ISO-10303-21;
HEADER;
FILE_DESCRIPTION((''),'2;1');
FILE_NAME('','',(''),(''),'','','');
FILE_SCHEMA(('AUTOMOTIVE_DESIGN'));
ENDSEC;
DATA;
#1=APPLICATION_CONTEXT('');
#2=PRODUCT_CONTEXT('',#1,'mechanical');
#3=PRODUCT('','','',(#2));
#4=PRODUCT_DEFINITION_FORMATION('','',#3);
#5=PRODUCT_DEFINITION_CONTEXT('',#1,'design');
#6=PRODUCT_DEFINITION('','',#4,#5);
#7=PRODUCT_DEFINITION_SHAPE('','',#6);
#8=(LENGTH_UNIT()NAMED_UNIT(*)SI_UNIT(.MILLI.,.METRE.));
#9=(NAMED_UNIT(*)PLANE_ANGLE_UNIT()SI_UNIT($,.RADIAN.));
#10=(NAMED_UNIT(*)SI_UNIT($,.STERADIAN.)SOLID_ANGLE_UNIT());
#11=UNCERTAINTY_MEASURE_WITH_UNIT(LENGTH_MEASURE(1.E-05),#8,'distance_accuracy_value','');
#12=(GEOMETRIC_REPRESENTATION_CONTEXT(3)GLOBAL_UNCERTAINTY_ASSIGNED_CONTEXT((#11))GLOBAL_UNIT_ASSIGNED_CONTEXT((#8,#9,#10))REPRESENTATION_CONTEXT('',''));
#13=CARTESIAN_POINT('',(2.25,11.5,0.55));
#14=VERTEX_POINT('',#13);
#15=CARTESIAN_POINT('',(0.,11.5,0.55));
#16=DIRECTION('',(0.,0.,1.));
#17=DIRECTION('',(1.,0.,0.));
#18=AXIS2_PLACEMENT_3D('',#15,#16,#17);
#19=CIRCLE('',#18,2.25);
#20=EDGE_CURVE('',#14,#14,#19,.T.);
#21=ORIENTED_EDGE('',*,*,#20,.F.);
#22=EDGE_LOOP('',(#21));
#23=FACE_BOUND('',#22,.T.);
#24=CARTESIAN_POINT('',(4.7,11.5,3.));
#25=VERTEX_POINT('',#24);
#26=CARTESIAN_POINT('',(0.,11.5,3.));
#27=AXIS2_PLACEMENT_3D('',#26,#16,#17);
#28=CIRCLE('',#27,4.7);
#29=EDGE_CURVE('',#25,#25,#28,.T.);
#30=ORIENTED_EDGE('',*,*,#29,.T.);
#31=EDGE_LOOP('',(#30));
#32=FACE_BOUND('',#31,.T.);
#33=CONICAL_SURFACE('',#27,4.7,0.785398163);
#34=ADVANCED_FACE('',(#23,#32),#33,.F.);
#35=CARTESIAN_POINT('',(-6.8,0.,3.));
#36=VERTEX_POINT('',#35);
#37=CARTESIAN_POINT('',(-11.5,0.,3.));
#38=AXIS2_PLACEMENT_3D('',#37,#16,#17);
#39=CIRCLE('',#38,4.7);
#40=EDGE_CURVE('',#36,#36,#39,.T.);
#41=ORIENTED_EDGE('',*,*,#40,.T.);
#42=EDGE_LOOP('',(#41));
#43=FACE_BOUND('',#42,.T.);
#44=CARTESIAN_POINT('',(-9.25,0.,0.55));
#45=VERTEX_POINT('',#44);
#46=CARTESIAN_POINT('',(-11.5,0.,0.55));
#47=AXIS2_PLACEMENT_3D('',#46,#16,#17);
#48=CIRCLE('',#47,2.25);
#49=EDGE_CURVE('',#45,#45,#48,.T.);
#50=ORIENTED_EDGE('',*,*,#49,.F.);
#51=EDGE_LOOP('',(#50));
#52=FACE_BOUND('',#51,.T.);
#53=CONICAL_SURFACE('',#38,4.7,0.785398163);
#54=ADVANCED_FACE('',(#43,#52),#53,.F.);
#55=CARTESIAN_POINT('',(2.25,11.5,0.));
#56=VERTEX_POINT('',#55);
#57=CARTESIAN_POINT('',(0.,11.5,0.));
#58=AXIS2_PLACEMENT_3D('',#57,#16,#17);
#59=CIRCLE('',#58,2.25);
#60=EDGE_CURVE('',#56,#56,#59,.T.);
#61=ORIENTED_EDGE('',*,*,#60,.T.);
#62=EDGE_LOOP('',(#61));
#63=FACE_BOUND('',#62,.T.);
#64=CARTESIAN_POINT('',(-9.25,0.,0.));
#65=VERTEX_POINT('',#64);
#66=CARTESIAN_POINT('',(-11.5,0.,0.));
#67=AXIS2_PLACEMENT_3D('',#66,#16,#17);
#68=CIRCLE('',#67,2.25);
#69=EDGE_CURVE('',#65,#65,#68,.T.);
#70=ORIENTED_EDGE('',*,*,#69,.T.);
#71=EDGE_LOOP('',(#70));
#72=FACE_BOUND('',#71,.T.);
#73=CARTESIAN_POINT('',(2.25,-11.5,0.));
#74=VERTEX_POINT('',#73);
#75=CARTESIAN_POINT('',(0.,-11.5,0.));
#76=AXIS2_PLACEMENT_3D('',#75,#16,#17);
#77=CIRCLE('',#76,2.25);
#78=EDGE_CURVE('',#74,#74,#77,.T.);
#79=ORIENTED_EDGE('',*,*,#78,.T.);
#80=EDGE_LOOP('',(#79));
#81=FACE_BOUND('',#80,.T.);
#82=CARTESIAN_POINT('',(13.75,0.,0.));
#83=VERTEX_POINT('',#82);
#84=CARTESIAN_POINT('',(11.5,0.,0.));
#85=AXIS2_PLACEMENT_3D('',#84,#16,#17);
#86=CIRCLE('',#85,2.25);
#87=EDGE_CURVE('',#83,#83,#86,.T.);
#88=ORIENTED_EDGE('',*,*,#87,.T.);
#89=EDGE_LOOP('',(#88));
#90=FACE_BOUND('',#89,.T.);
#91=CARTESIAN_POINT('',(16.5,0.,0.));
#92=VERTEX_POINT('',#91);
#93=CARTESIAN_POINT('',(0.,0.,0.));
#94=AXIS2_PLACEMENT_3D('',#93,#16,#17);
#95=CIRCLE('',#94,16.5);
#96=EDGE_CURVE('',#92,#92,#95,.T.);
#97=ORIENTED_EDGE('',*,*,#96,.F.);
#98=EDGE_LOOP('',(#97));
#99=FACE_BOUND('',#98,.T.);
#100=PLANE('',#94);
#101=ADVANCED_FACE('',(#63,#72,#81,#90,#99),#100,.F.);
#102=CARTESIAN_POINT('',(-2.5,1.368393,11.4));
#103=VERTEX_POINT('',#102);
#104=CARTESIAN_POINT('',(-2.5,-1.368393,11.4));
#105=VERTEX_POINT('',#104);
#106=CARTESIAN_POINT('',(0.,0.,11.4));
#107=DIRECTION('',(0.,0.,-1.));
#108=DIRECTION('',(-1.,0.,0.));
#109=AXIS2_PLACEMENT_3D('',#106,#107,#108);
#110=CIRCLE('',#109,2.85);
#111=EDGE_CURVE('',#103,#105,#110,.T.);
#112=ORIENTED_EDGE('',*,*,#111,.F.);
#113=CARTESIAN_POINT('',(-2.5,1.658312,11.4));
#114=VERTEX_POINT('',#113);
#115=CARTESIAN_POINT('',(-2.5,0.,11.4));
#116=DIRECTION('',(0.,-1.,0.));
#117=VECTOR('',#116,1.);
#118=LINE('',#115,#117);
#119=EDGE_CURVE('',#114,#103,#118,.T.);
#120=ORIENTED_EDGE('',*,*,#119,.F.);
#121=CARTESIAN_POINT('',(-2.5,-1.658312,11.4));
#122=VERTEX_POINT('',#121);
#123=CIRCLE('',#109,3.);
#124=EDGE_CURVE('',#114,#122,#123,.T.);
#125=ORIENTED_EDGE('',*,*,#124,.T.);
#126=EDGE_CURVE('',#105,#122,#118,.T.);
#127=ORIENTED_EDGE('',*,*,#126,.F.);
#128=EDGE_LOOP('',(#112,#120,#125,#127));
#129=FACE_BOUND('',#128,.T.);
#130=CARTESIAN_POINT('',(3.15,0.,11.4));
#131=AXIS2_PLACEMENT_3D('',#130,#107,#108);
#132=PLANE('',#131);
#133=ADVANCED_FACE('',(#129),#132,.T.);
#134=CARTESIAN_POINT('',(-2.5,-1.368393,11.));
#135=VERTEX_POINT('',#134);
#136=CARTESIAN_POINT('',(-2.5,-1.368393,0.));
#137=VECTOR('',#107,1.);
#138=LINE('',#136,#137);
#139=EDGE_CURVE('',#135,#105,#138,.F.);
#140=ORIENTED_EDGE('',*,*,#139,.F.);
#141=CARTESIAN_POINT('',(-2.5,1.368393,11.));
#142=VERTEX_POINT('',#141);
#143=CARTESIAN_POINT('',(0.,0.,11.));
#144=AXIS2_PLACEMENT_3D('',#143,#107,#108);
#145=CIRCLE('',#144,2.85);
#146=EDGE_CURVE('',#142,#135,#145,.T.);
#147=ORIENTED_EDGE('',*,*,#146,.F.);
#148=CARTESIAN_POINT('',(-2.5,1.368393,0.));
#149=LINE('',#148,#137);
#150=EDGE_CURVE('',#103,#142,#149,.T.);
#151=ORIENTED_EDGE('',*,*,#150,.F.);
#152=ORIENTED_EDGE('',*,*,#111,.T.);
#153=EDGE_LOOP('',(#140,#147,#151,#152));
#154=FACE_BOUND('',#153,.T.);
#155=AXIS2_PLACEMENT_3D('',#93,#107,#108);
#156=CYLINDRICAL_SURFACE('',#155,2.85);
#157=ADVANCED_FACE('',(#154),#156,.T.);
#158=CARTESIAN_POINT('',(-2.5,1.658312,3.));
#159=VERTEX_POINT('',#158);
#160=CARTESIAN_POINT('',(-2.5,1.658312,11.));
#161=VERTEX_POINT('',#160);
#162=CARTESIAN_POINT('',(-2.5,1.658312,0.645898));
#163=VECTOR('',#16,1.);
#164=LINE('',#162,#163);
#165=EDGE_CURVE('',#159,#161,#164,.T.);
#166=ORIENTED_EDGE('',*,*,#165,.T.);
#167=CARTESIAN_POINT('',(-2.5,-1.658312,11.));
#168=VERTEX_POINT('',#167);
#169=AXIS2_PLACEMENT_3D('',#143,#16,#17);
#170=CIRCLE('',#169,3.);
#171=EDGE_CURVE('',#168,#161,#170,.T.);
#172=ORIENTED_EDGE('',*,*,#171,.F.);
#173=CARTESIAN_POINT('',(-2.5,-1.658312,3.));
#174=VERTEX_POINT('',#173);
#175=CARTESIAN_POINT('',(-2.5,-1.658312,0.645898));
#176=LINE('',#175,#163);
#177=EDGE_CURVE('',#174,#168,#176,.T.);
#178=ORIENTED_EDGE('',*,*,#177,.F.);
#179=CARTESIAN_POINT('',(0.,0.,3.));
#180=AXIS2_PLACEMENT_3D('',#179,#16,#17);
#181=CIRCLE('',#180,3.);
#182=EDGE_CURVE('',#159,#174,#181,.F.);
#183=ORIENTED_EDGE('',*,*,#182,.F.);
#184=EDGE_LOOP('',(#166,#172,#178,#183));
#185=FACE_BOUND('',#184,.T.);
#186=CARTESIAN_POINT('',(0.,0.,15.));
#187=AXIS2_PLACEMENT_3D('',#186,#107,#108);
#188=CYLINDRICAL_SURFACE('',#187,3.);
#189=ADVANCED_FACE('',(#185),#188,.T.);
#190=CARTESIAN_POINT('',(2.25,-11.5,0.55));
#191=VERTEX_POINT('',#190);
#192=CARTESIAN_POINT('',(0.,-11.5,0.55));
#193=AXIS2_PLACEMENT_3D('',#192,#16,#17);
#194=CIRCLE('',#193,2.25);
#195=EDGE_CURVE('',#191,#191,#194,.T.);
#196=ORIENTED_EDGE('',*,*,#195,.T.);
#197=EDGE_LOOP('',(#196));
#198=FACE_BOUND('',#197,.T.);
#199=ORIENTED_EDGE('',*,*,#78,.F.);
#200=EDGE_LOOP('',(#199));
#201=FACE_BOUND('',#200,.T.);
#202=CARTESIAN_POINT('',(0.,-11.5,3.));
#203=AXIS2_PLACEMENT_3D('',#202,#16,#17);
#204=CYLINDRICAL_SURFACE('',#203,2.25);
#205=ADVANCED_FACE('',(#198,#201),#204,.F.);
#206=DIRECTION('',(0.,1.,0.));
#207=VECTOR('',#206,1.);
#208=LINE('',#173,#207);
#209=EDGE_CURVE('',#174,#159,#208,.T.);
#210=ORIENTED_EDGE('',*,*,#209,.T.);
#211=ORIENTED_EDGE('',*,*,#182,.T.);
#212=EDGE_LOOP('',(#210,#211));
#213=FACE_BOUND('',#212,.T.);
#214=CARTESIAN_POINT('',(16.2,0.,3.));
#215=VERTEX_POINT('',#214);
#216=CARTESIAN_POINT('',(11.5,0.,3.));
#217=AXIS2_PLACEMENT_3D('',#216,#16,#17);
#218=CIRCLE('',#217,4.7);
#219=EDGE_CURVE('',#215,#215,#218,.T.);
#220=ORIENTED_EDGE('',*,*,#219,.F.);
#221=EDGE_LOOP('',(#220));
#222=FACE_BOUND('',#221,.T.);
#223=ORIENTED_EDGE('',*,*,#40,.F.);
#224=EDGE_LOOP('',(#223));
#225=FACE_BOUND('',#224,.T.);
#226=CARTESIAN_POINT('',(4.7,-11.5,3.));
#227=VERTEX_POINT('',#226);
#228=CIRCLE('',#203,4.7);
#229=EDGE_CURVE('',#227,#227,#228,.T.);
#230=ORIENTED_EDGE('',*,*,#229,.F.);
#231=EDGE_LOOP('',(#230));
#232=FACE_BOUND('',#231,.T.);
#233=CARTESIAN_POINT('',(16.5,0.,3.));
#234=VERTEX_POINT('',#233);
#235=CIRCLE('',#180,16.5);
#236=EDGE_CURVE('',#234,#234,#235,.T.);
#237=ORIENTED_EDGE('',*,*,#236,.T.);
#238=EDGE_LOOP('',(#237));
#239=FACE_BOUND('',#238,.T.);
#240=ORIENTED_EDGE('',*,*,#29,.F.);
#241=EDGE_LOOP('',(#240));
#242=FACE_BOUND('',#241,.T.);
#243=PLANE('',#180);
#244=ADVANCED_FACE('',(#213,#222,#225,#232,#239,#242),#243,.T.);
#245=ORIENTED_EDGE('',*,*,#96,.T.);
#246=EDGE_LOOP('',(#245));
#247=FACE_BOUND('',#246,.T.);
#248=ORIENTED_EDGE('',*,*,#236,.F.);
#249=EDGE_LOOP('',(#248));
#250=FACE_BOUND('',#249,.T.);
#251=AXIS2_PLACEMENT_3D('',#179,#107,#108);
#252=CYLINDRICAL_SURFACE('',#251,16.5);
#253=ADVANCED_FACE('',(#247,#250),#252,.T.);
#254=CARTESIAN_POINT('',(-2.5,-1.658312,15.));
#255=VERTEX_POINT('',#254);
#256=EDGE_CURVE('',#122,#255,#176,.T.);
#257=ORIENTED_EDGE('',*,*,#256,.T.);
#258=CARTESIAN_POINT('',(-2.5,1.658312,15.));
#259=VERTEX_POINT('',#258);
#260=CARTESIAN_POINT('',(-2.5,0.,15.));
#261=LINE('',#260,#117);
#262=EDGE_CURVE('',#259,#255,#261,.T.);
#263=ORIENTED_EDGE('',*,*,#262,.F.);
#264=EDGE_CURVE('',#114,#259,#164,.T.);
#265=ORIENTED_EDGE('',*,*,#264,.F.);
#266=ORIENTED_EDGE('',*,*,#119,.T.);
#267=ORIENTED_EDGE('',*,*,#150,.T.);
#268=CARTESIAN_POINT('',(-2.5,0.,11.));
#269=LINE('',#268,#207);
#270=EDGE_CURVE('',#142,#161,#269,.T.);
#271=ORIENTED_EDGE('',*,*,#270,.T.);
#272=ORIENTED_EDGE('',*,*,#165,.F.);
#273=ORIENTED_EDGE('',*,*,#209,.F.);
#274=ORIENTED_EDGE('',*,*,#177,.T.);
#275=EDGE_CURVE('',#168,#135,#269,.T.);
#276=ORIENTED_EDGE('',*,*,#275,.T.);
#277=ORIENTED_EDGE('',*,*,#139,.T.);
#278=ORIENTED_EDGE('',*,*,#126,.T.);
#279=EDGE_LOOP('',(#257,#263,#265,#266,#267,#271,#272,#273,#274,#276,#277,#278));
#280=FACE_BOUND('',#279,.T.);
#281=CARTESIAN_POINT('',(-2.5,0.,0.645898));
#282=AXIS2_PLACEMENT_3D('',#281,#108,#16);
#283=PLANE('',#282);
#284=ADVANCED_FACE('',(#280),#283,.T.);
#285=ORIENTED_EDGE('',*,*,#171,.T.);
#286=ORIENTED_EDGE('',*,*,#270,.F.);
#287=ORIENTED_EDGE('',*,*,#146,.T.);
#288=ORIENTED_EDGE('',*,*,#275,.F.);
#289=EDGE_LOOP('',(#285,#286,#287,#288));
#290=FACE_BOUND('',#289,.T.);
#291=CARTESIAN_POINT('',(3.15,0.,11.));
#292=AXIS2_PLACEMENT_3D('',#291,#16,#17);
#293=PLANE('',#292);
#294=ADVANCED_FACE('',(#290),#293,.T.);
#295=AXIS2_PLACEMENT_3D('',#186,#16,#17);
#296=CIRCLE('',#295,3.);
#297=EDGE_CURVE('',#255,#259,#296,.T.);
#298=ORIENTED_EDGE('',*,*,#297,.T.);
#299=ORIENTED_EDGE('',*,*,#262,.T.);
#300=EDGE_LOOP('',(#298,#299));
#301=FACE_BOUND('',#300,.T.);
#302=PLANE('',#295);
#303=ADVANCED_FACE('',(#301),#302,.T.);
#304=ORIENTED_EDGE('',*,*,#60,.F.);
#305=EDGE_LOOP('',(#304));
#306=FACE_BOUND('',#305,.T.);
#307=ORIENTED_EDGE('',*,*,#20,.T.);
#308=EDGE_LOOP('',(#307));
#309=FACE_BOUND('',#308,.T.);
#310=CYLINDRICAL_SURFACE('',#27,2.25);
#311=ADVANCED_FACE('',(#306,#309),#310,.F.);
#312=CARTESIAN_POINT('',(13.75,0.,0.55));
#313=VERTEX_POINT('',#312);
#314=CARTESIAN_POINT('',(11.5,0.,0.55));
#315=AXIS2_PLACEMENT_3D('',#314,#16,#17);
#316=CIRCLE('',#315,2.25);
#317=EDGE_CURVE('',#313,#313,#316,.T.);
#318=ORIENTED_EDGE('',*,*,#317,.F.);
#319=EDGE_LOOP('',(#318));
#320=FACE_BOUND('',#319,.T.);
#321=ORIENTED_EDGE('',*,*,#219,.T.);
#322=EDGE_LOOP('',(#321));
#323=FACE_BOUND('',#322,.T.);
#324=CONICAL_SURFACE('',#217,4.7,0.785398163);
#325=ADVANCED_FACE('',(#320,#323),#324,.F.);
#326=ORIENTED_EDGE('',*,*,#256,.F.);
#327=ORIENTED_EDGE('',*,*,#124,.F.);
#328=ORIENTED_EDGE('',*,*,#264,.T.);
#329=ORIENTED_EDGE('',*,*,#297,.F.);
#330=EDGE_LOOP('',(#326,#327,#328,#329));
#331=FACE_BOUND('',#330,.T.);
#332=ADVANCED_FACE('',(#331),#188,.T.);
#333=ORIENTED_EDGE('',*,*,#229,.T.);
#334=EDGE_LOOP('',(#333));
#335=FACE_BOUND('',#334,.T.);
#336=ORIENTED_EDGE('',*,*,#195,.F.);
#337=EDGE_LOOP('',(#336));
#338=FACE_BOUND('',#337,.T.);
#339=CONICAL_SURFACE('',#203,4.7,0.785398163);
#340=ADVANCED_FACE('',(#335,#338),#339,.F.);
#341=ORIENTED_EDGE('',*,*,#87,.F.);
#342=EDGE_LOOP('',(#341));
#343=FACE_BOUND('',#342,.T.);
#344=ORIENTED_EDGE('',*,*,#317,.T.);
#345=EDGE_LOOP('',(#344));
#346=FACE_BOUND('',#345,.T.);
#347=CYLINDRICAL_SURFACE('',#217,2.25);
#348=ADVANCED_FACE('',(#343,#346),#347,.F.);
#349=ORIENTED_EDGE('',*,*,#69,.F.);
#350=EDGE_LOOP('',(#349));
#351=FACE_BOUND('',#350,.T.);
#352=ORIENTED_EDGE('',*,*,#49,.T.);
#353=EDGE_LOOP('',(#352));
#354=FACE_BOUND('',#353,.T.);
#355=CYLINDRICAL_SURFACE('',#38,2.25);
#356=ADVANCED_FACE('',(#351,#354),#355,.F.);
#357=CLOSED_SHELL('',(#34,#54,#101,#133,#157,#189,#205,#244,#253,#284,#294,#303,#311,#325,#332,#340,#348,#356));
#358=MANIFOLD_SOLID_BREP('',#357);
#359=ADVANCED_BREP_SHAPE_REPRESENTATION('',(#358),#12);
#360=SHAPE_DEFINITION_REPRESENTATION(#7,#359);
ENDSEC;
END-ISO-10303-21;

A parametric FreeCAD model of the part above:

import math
import FreeCAD as App
import Part
import Sketcher
Q = App.Units.Quantity


def add_polygon(sketch, points):
    """Adds a closed chain of lines whose ends are joined by coincident constraints."""
    first, n = sketch.GeometryCount, len(points)
    for a, b in zip(points, points[1:] + points[:1]):
        sketch.addGeometry(Part.LineSegment(App.Vector(*a, 0), App.Vector(*b, 0)), False)
    for i in range(n):
        sketch.addConstraint(Sketcher.Constraint("Coincident", first + i, 2, first + (i + 1) % n, 1))

doc = App.newDocument("Part")
body = doc.addObject("PartDesign::Body", "Body")

sketch1 = doc.addObject("Sketcher::SketchObject", "Sketch")
body.addObject(sketch1)
sketch1.AttachmentSupport = (doc.XY_Plane, [""])
sketch1.MapMode = "FlatFace"
sketch1.addGeometry(Part.Circle(App.Vector(0, 0, 0), App.Vector(0, 0, 1), 16), False)
sketch1.addConstraint(Sketcher.Constraint("Coincident", 0, 3, -1, 1))
sketch1.addConstraint(Sketcher.Constraint("Diameter", 0, 33.0))
pad1 = doc.addObject("PartDesign::Pad", "Pad")
body.addObject(pad1)
pad1.Profile = sketch1
pad1.Length = 3

sketch2 = doc.addObject("Sketcher::SketchObject", "Sketch001")
body.addObject(sketch2)
sketch2.AttachmentSupport = (doc.XY_Plane, [""])
sketch2.MapMode = "FlatFace"
sketch2.AttachmentOffset = App.Placement(App.Vector(0, 0, 3), App.Rotation())
sketch2.addGeometry(Part.Circle(App.Vector(0, 0, 0), App.Vector(0, 0, 1), 3), False)
sketch2.addConstraint(Sketcher.Constraint("Coincident", 0, 3, -1, 1))
sketch2.addConstraint(Sketcher.Constraint("Diameter", 0, 6.0))
pad2 = doc.addObject("PartDesign::Pad", "Pad001")
body.addObject(pad2)
pad2.Profile = sketch2
pad2.Length = 12

sketch3 = doc.addObject("Sketcher::SketchObject", "Sketch002")
body.addObject(sketch3)
sketch3.AttachmentSupport = (doc.XY_Plane, [""])
sketch3.MapMode = "FlatFace"
sketch3.AttachmentOffset = App.Placement(App.Vector(0, 0, 3), App.Rotation())
sketch3.addGeometry(Part.Circle(App.Vector(0, 0, 0), App.Vector(0, 0, 1), 6), False)
sketch3.addConstraint(Sketcher.Constraint("Coincident", 0, 3, -1, 1))
sketch3.addConstraint(Sketcher.Constraint("Diameter", 0, 12.0))
pad3 = doc.addObject("PartDesign::Pad", "Pad002")
body.addObject(pad3)
pad3.Profile = sketch3
pad3.Length = 1

sketch4 = doc.addObject("Sketcher::SketchObject", "Sketch003")
body.addObject(sketch4)
sketch4.AttachmentSupport = (doc.XY_Plane, [""])
sketch4.MapMode = "FlatFace"
sketch4.AttachmentOffset = App.Placement(App.Vector(0, 0, 4), App.Rotation())
sketch4.addGeometry(Part.LineSegment(App.Vector(-2.5, -1.7, 0), App.Vector(-2.5, 1.7, 0)), False)
sketch4.addGeometry(Part.ArcOfCircle(Part.Circle(App.Vector(0, 0, 0), App.Vector(0, 0, 1), 3), math.radians(146), math.radians(214)), False)
sketch4.addConstraint(Sketcher.Constraint("Coincident", 0, 1, 1, 2))
sketch4.addConstraint(Sketcher.Constraint("Coincident", 1, 1, 0, 2))
sketch4.addConstraint(Sketcher.Constraint("Vertical", 0))
sketch4.addConstraint(Sketcher.Constraint("Coincident", 1, 3, -1, 1))
sketch4.addConstraint(Sketcher.Constraint("Radius", 1, 3.0))
sketch4.addConstraint(Sketcher.Constraint("DistanceX", 0, 1, -1, 1, 2.5))
pocket1 = doc.addObject("PartDesign::Pocket", "Pocket")
body.addObject(pocket1)
pocket1.Profile = sketch4
pocket1.Length = 11
pocket1.Reversed = True

sketch5 = doc.addObject("Sketcher::SketchObject", "Sketch004")
body.addObject(sketch5)
sketch5.AttachmentSupport = (doc.XY_Plane, [""])
sketch5.MapMode = "FlatFace"
sketch5.AttachmentOffset = App.Placement(App.Vector(0, 0, 3), App.Rotation())
sketch5.addGeometry(Part.Circle(App.Vector(0, 11.5, 0), App.Vector(0, 0, 1), 2), False)
sketch5.addConstraint(Sketcher.Constraint("PointOnObject", 0, 3, -2))
sketch5.addConstraint(Sketcher.Constraint("Diameter", 0, 4.0))
sketch5.addConstraint(Sketcher.Constraint("DistanceY", -1, 1, 0, 3, 11.5))
pocket2 = doc.addObject("PartDesign::Pocket", "Pocket001")
body.addObject(pocket2)
pocket2.Profile = sketch5
pocket2.Type = "ThroughAll"
doc.recompute()

polarpattern = doc.addObject("PartDesign::PolarPattern", "PolarPattern")
body.addObject(polarpattern)
polarpattern.Originals = [pocket2]
polarpattern.Axis = (doc.Z_Axis, [""])
polarpattern.Angle = 360
polarpattern.Occurrences = 4
body.Tip = polarpattern

sketch6 = doc.addObject("Sketcher::SketchObject", "Sketch005")
body.addObject(sketch6)
sketch6.AttachmentSupport = (doc.YZ_Plane, [""])
sketch6.MapMode = "FlatFace"
sketch6.AttachmentOffset = App.Placement(App.Vector(0, 0, -11.5), App.Rotation())
add_polygon(sketch6, [(0, 0), (0, 3), (-4.7, 3), (-2.2, 0.6), (-2.2, 0)])
sketch6.addConstraint(Sketcher.Constraint("Vertical", 0))
sketch6.addConstraint(Sketcher.Constraint("Horizontal", 1))
sketch6.addConstraint(Sketcher.Constraint("Vertical", 3))
sketch6.addConstraint(Sketcher.Constraint("Horizontal", 4))
sketch6.addConstraint(Sketcher.Constraint("Coincident", 4, 2, -1, 1))
sketch6.addConstraint(Sketcher.Constraint("DistanceY", 0, 1, 0, 2, 3.0))
sketch6.addConstraint(Sketcher.Constraint("Angle", 2, Q("-45 deg")))
sketch6.addConstraint(Sketcher.Constraint("DistanceX", 1, 2, 1, 1, 4.7))
sketch6.addConstraint(Sketcher.Constraint("DistanceX", 4, 1, 4, 2, 2.25))
groove = doc.addObject("PartDesign::Groove", "Groove")
body.addObject(groove)
groove.Profile = sketch6
groove.ReferenceAxis = (sketch6, ["V_Axis"])
groove.Angle = 360
doc.recompute()

datumline = doc.addObject("PartDesign::Line", "DatumLine")
body.addObject(datumline)
datumline.Placement = App.Placement(App.Vector(0, 0, 0), App.Rotation(App.Vector(0, 0, 1), App.Vector(0.707106781, 0.707106781, 0)))
linearpattern = doc.addObject("PartDesign::LinearPattern", "LinearPattern")
body.addObject(linearpattern)
linearpattern.Originals = [groove]
linearpattern.Direction = (datumline, [""])
linearpattern.Mode = "offset"
linearpattern.Offset = 16.263456
linearpattern.Occurrences = 2
body.Tip = linearpattern
doc.recompute()

linearpattern2 = doc.addObject("PartDesign::LinearPattern", "LinearPattern001")
body.addObject(linearpattern2)
linearpattern2.Originals = [groove]
linearpattern2.Direction = (doc.X_Axis, [""])
linearpattern2.Mode = "offset"
linearpattern2.Offset = 23
linearpattern2.Occurrences = 2
body.Tip = linearpattern2
doc.recompute()

datumline2 = doc.addObject("PartDesign::Line", "DatumLine001")
body.addObject(datumline2)
datumline2.Placement = App.Placement(App.Vector(0, 0, 0), App.Rotation(App.Vector(0, 0, 1), App.Vector(0.707106781, -0.707106781, 0)))
linearpattern3 = doc.addObject("PartDesign::LinearPattern", "LinearPattern002")
body.addObject(linearpattern3)
linearpattern3.Originals = [groove]
linearpattern3.Direction = (datumline2, [""])
linearpattern3.Mode = "offset"
linearpattern3.Offset = 16.263456
linearpattern3.Occurrences = 2
body.Tip = linearpattern3

sketch7 = doc.addObject("Sketcher::SketchObject", "Sketch006")
body.addObject(sketch7)
sketch7.AttachmentSupport = (doc.XY_Plane, [""])
sketch7.MapMode = "FlatFace"
sketch7.AttachmentOffset = App.Placement(App.Vector(0, 0, 3), App.Rotation())
sketch7.addGeometry(Part.Circle(App.Vector(0, 0, 0), App.Vector(0, 0, 1), 6), False)
sketch7.addGeometry(Part.ArcOfCircle(Part.Circle(App.Vector(0, 0, 0), App.Vector(0, 0, 1), 3), math.radians(-146), math.radians(146)), False)
sketch7.addGeometry(Part.LineSegment(App.Vector(-2.5, -1.7, 0), App.Vector(-2.5, 1.7, 0)), False)
sketch7.addConstraint(Sketcher.Constraint("Coincident", 1, 1, 2, 1))
sketch7.addConstraint(Sketcher.Constraint("Coincident", 2, 2, 1, 2))
sketch7.addConstraint(Sketcher.Constraint("Vertical", 2))
sketch7.addConstraint(Sketcher.Constraint("Coincident", 0, 3, -1, 1))
sketch7.addConstraint(Sketcher.Constraint("Coincident", 1, 3, -1, 1))
sketch7.addConstraint(Sketcher.Constraint("Diameter", 0, 12.0))
sketch7.addConstraint(Sketcher.Constraint("Radius", 1, 3.0))
sketch7.addConstraint(Sketcher.Constraint("DistanceX", 1, 1, -1, 1, 2.5))
pocket3 = doc.addObject("PartDesign::Pocket", "Pocket002")
body.addObject(pocket3)
pocket3.Profile = sketch7
pocket3.Length = 1
pocket3.Reversed = True

sketch8 = doc.addObject("Sketcher::SketchObject", "Sketch007")
body.addObject(sketch8)
sketch8.AttachmentSupport = (doc.XZ_Plane, [""])
sketch8.MapMode = "FlatFace"
add_polygon(sketch8, [(2.85, 11), (2.85, 11.4), (3.15, 11.4), (3.15, 11)])
sketch8.addConstraint(Sketcher.Constraint("Vertical", 0))
sketch8.addConstraint(Sketcher.Constraint("Horizontal", 1))
sketch8.addConstraint(Sketcher.Constraint("Vertical", 2))
sketch8.addConstraint(Sketcher.Constraint("Horizontal", 3))
sketch8.addConstraint(Sketcher.Constraint("DistanceX", 1, 1, 1, 2, 0.3))
sketch8.addConstraint(Sketcher.Constraint("DistanceY", 0, 1, 0, 2, 0.4))
sketch8.addConstraint(Sketcher.Constraint("DistanceY", -1, 1, 2, 2, 11.0))
sketch8.addConstraint(Sketcher.Constraint("DistanceX", -1, 1, 0, 2, 2.85))
groove2 = doc.addObject("PartDesign::Groove", "Groove001")
body.addObject(groove2)
groove2.Profile = sketch8
groove2.ReferenceAxis = (sketch8, ["V_Axis"])
groove2.Angle = 360

doc.recompute()
